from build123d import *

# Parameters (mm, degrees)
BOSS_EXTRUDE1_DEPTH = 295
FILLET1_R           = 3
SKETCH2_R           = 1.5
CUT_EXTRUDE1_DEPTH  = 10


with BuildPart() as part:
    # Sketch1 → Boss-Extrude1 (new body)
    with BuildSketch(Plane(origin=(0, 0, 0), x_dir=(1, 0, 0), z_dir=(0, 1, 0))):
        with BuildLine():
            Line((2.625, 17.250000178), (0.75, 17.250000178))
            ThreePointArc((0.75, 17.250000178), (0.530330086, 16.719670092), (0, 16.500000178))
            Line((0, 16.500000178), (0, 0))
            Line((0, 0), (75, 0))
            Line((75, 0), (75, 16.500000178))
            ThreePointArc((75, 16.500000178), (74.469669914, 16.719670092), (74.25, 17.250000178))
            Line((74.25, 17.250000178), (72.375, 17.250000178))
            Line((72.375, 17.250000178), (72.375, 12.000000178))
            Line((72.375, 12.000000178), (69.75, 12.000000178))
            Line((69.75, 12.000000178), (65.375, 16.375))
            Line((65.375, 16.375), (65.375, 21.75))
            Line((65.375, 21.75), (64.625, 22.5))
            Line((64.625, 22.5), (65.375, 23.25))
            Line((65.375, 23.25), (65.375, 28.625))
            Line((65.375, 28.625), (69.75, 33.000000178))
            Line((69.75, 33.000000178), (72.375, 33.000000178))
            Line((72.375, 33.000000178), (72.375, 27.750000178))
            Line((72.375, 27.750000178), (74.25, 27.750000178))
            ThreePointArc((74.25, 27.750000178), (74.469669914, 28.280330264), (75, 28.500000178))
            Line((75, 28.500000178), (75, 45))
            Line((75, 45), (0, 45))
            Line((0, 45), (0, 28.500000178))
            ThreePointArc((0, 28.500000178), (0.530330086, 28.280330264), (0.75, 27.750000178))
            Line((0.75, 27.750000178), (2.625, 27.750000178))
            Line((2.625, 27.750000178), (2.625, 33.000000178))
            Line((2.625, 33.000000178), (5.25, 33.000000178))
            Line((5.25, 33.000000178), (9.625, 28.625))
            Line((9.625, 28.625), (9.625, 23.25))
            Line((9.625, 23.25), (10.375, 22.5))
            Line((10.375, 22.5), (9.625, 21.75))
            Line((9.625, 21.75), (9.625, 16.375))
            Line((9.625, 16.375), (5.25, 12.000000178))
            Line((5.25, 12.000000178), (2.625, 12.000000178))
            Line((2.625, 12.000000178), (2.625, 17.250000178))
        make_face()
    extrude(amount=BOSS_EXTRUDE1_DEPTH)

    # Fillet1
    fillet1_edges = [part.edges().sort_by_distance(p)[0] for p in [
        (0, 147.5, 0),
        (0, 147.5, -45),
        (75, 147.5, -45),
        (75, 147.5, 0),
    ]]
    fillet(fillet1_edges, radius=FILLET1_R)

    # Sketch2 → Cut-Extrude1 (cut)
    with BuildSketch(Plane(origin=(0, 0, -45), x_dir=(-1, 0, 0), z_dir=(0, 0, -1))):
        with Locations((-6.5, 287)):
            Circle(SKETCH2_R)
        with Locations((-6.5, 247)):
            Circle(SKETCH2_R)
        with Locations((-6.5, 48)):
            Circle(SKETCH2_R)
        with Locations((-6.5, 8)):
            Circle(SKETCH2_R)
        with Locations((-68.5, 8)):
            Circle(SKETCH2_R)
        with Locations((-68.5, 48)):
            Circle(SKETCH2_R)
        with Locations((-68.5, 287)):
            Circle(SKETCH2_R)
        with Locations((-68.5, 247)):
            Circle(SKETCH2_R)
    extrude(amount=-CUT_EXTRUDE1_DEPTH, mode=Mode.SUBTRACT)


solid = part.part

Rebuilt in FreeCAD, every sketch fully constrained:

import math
import FreeCAD as App
import Part
import Sketcher

V = App.Vector


def edges_at(feature, points):
    """Names of the edges that pass closest to the given points."""
    edges = feature.Shape.Edges
    near = lambda p: min(range(len(edges)), key=lambda i: edges[i].distToShape(Part.Vertex(*p))[0])
    return sorted({f"Edge{near(p) + 1}" for p in points})

doc = App.newDocument("Part")
body = doc.addObject("PartDesign::Body", "Body")

sketch1 = body.newObject("Sketcher::SketchObject", "Sketch")
sketch1.AttachmentSupport = (doc.getObject("XZ_Plane"), [""])
sketch1.MapMode = "FlatFace"
sketch1.addGeometry(Part.LineSegment(V(2.625, -17.25, 0), V(0.75, -17.25, 0)), False)
sketch1.addGeometry(Part.ArcOfCircle(Part.Circle(V(0, -17.25, 0), V(0, 0, 1), 0.75), math.radians(0), math.radians(90)), False)
sketch1.addGeometry(Part.LineSegment(V(0, -16.5, 0), V(0, 0, 0)), False)
sketch1.addGeometry(Part.LineSegment(V(0, 0, 0), V(75, 0, 0)), False)
sketch1.addGeometry(Part.LineSegment(V(75, 0, 0), V(75, -16.5, 0)), False)
sketch1.addGeometry(Part.ArcOfCircle(Part.Circle(V(75, -17.25, 0), V(0, 0, 1), 0.75), math.radians(90), math.radians(180)), False)
sketch1.addGeometry(Part.LineSegment(V(74.25, -17.25, 0), V(72.375, -17.25, 0)), False)
sketch1.addGeometry(Part.LineSegment(V(72.375, -17.25, 0), V(72.375, -12, 0)), False)
sketch1.addGeometry(Part.LineSegment(V(72.375, -12, 0), V(69.75, -12, 0)), False)
sketch1.addGeometry(Part.LineSegment(V(69.75, -12, 0), V(65.375, -16.375, 0)), False)
sketch1.addGeometry(Part.LineSegment(V(65.375, -16.375, 0), V(65.375, -21.75, 0)), False)
sketch1.addGeometry(Part.LineSegment(V(65.375, -21.75, 0), V(64.625, -22.5, 0)), False)
sketch1.addGeometry(Part.LineSegment(V(64.625, -22.5, 0), V(65.375, -23.25, 0)), False)
sketch1.addGeometry(Part.LineSegment(V(65.375, -23.25, 0), V(65.375, -28.625, 0)), False)
sketch1.addGeometry(Part.LineSegment(V(65.375, -28.625, 0), V(69.75, -33, 0)), False)
sketch1.addGeometry(Part.LineSegment(V(69.75, -33, 0), V(72.375, -33, 0)), False)
sketch1.addGeometry(Part.LineSegment(V(72.375, -33, 0), V(72.375, -27.75, 0)), False)
sketch1.addGeometry(Part.LineSegment(V(72.375, -27.75, 0), V(74.25, -27.75, 0)), False)
sketch1.addGeometry(Part.ArcOfCircle(Part.Circle(V(75, -27.75, 0), V(0, 0, 1), 0.75), math.radians(180), math.radians(270)), False)
sketch1.addGeometry(Part.LineSegment(V(75, -28.5, 0), V(75, -45, 0)), False)
sketch1.addGeometry(Part.LineSegment(V(75, -45, 0), V(0, -45, 0)), False)
sketch1.addGeometry(Part.LineSegment(V(0, -45, 0), V(0, -28.5, 0)), False)
sketch1.addGeometry(Part.ArcOfCircle(Part.Circle(V(0, -27.75, 0), V(0, 0, 1), 0.75), math.radians(-90), math.radians(0)), False)
sketch1.addGeometry(Part.LineSegment(V(0.75, -27.75, 0), V(2.625, -27.75, 0)), False)
sketch1.addGeometry(Part.LineSegment(V(2.625, -27.75, 0), V(2.625, -33, 0)), False)
sketch1.addGeometry(Part.LineSegment(V(2.625, -33, 0), V(5.25, -33, 0)), False)
sketch1.addGeometry(Part.LineSegment(V(5.25, -33, 0), V(9.625, -28.625, 0)), False)
sketch1.addGeometry(Part.LineSegment(V(9.625, -28.625, 0), V(9.625, -23.25, 0)), False)
sketch1.addGeometry(Part.LineSegment(V(9.625, -23.25, 0), V(10.375, -22.5, 0)), False)
sketch1.addGeometry(Part.LineSegment(V(10.375, -22.5, 0), V(9.625, -21.75, 0)), False)
sketch1.addGeometry(Part.LineSegment(V(9.625, -21.75, 0), V(9.625, -16.375, 0)), False)
sketch1.addGeometry(Part.LineSegment(V(9.625, -16.375, 0), V(5.25, -12, 0)), False)
sketch1.addGeometry(Part.LineSegment(V(5.25, -12, 0), V(2.625, -12, 0)), False)
sketch1.addGeometry(Part.LineSegment(V(2.625, -12, 0), V(2.625, -17.25, 0)), False)
sketch1.addConstraint(Sketcher.Constraint("Coincident", 0, 2, 1, 1))
sketch1.addConstraint(Sketcher.Constraint("Coincident", 1, 2, 2, 1))
sketch1.addConstraint(Sketcher.Constraint("Coincident", 2, 2, 3, 1))
sketch1.addConstraint(Sketcher.Constraint("Coincident", 3, 2, 4, 1))
sketch1.addConstraint(Sketcher.Constraint("Coincident", 4, 2, 5, 1))
sketch1.addConstraint(Sketcher.Constraint("Coincident", 5, 2, 6, 1))
sketch1.addConstraint(Sketcher.Constraint("Coincident", 6, 2, 7, 1))
sketch1.addConstraint(Sketcher.Constraint("Coincident", 7, 2, 8, 1))
sketch1.addConstraint(Sketcher.Constraint("Coincident", 8, 2, 9, 1))
sketch1.addConstraint(Sketcher.Constraint("Coincident", 9, 2, 10, 1))
sketch1.addConstraint(Sketcher.Constraint("Coincident", 10, 2, 11, 1))
sketch1.addConstraint(Sketcher.Constraint("Coincident", 11, 2, 12, 1))
sketch1.addConstraint(Sketcher.Constraint("Coincident", 12, 2, 13, 1))
sketch1.addConstraint(Sketcher.Constraint("Coincident", 13, 2, 14, 1))
sketch1.addConstraint(Sketcher.Constraint("Coincident", 14, 2, 15, 1))
sketch1.addConstraint(Sketcher.Constraint("Coincident", 15, 2, 16, 1))
sketch1.addConstraint(Sketcher.Constraint("Coincident", 16, 2, 17, 1))
sketch1.addConstraint(Sketcher.Constraint("Coincident", 17, 2, 18, 1))
sketch1.addConstraint(Sketcher.Constraint("Coincident", 18, 2, 19, 1))
sketch1.addConstraint(Sketcher.Constraint("Coincident", 19, 2, 20, 1))
sketch1.addConstraint(Sketcher.Constraint("Coincident", 20, 2, 21, 1))
sketch1.addConstraint(Sketcher.Constraint("Coincident", 21, 2, 22, 1))
sketch1.addConstraint(Sketcher.Constraint("Coincident", 22, 2, 23, 1))
sketch1.addConstraint(Sketcher.Constraint("Coincident", 23, 2, 24, 1))
sketch1.addConstraint(Sketcher.Constraint("Coincident", 24, 2, 25, 1))
sketch1.addConstraint(Sketcher.Constraint("Coincident", 25, 2, 26, 1))
sketch1.addConstraint(Sketcher.Constraint("Coincident", 26, 2, 27, 1))
sketch1.addConstraint(Sketcher.Constraint("Coincident", 27, 2, 28, 1))
sketch1.addConstraint(Sketcher.Constraint("Coincident", 28, 2, 29, 1))
sketch1.addConstraint(Sketcher.Constraint("Coincident", 29, 2, 30, 1))
sketch1.addConstraint(Sketcher.Constraint("Coincident", 30, 2, 31, 1))
sketch1.addConstraint(Sketcher.Constraint("Coincident", 31, 2, 32, 1))
sketch1.addConstraint(Sketcher.Constraint("Coincident", 32, 2, 33, 1))
sketch1.addConstraint(Sketcher.Constraint("Coincident", 33, 2, 0, 1))
sketch1.addConstraint(Sketcher.Constraint("Horizontal", 0))
sketch1.addConstraint(Sketcher.Constraint("Vertical", 2))
sketch1.addConstraint(Sketcher.Constraint("Horizontal", 3))
sketch1.addConstraint(Sketcher.Constraint("Vertical", 4))
sketch1.addConstraint(Sketcher.Constraint("Horizontal", 6))
sketch1.addConstraint(Sketcher.Constraint("Vertical", 7))
sketch1.addConstraint(Sketcher.Constraint("Horizontal", 8))
sketch1.addConstraint(Sketcher.Constraint("Vertical", 10))
sketch1.addConstraint(Sketcher.Constraint("Vertical", 13))
sketch1.addConstraint(Sketcher.Constraint("Horizontal", 15))
sketch1.addConstraint(Sketcher.Constraint("Vertical", 16))
sketch1.addConstraint(Sketcher.Constraint("Horizontal", 17))
sketch1.addConstraint(Sketcher.Constraint("Vertical", 19))
sketch1.addConstraint(Sketcher.Constraint("Horizontal", 20))
sketch1.addConstraint(Sketcher.Constraint("Vertical", 21))
sketch1.addConstraint(Sketcher.Constraint("Horizontal", 23))
sketch1.addConstraint(Sketcher.Constraint("Vertical", 24))
sketch1.addConstraint(Sketcher.Constraint("Horizontal", 25))
sketch1.addConstraint(Sketcher.Constraint("Vertical", 27))
sketch1.addConstraint(Sketcher.Constraint("Vertical", 30))
sketch1.addConstraint(Sketcher.Constraint("Horizontal", 32))
sketch1.addConstraint(Sketcher.Constraint("Vertical", 33))
sketch1.addConstraint(Sketcher.Constraint("Coincident", 2, 2, -1, 1))
sketch1.addConstraint(Sketcher.Constraint("Equal", 1, 5))
sketch1.addConstraint(Sketcher.Constraint("Equal", 5, 18))
sketch1.addConstraint(Sketcher.Constraint("Equal", 18, 22))
sketch1.addConstraint(Sketcher.Constraint("PointOnObject", 1, 3, -2))
sketch1.addConstraint(Sketcher.Constraint("PointOnObject", 22, 3, -2))
sketch1.addConstraint(Sketcher.Constraint("PointOnObject", 20, 2, -2))
sketch1.addConstraint(Sketcher.Constraint("Parallel", 9, 11))
sketch1.addConstraint(Sketcher.Constraint("Perpendicular", 11, 12))
sketch1.addConstraint(Sketcher.Constraint("Parallel", 12, 14))
sketch1.addConstraint(Sketcher.Constraint("Perpendicular", 14, 26))
sketch1.addConstraint(Sketcher.Constraint("Parallel", 26, 28))
sketch1.addConstraint(Sketcher.Constraint("Perpendicular", 28, 29))
sketch1.addConstraint(Sketcher.Constraint("Parallel", 29, 31))
sketch1.addConstraint(Sketcher.Constraint("Horizontal", 1, 3, 5, 3))
sketch1.addConstraint(Sketcher.Constraint("Horizontal", 18, 3, 22, 3))
sketch1.addConstraint(Sketcher.Constraint("Horizontal", 5, 3, 0, 2))
sketch1.addConstraint(Sketcher.Constraint("Horizontal", 0, 2, 5, 2))
sketch1.addConstraint(Sketcher.Constraint("Horizontal", 22, 3, 16, 2))
sketch1.addConstraint(Sketcher.Constraint("Horizontal", 17, 2, 22, 2))
sketch1.addConstraint(Sketcher.Constraint("Horizontal", 15, 2, 24, 2))
sketch1.addConstraint(Sketcher.Constraint("Horizontal", 13, 2, 26, 2))
sketch1.addConstraint(Sketcher.Constraint("Horizontal", 12, 2, 27, 2))
sketch1.addConstraint(Sketcher.Constraint("Horizontal", 11, 2, 28, 2))
sketch1.addConstraint(Sketcher.Constraint("Horizontal", 10, 2, 29, 2))
sketch1.addConstraint(Sketcher.Constraint("Horizontal", 9, 2, 30, 2))
sketch1.addConstraint(Sketcher.Constraint("Horizontal", 8, 2, 31, 2))
sketch1.addConstraint(Sketcher.Constraint("Vertical", 5, 3, 18, 3))
sketch1.addConstraint(Sketcher.Constraint("Vertical", 18, 3, 3, 2))
sketch1.addConstraint(Sketcher.Constraint("Vertical", 10, 2, 12, 2))
sketch1.addConstraint(Sketcher.Constraint("Vertical", 8, 2, 14, 2))
sketch1.addConstraint(Sketcher.Constraint("Vertical", 7, 2, 15, 2))
sketch1.addConstraint(Sketcher.Constraint("Vertical", 4, 2, 18, 2))
sketch1.addConstraint(Sketcher.Constraint("Vertical", 27, 2, 29, 2))
sketch1.addConstraint(Sketcher.Constraint("Vertical", 24, 2, 32, 2))
sketch1.addConstraint(Sketcher.Constraint("Equal", 0, 6))
sketch1.addConstraint(Sketcher.Constraint("Equal", 15, 25))
sketch1.addConstraint(Sketcher.Constraint("Equal", 10, 13))
sketch1.addConstraint(Sketcher.Constraint("Equal", 7, 16))
sketch1.addConstraint(Sketcher.Constraint("Equal", 4, 19))
sketch1.addConstraint(Sketcher.Constraint("DistanceX", 3, 1, 3, 2, 75.0))
sketch1.addConstraint(Sketcher.Constraint("Radius", 1, 0.75))
sketch1.addConstraint(Sketcher.Constraint("DistanceY", 2, 1, 2, 2, 16.5))
sketch1.addConstraint(Sketcher.Constraint("DistanceY", 7, 2, -1, 1, 12.0))
sketch1.addConstraint(Sketcher.Constraint("DistanceY", 14, 2, -1, 1, 33.0))
sketch1.addConstraint(Sketcher.Constraint("DistanceX", 9, 2, 6, 2, 7.0))
sketch1.addConstraint(Sketcher.Constraint("DistanceY", 12, 2, 6, 2, 6.0))
sketch1.addConstraint(Sketcher.Constraint("DistanceX", 8, 2, 5, 2, 4.5))
sketch1.addConstraint(Sketcher.Constraint("DistanceX", 0, 2, 0, 1, 1.875))
pad1 = body.newObject("PartDesign::Pad", "Pad")
pad1.Profile = sketch1
pad1.Length = 295
pad1.Reversed = True
doc.recompute()

fillet = body.newObject("PartDesign::Fillet", "Fillet")
fillet.Base = (pad1, edges_at(pad1, [
    (0, 147.5, 0),
    (0, 147.5, -45),
    (75, 147.5, -45),
    (75, 147.5, 0),
]))
fillet.Radius = 3

sketch2 = body.newObject("Sketcher::SketchObject", "Sketch001")
sketch2.AttachmentSupport = (doc.getObject("XY_Plane"), [""])
sketch2.MapMode = "FlatFace"
sketch2.AttachmentOffset = App.Placement(V(0, 0, -45), App.Rotation())
sketch2.addGeometry(Part.Circle(V(6.5, 287, 0), V(0, 0, 1), 1.5), False)
sketch2.addGeometry(Part.Circle(V(6.5, 247, 0), V(0, 0, 1), 1.5), False)
sketch2.addGeometry(Part.Circle(V(6.5, 48, 0), V(0, 0, 1), 1.5), False)
sketch2.addGeometry(Part.Circle(V(6.5, 8, 0), V(0, 0, 1), 1.5), False)
sketch2.addGeometry(Part.Circle(V(68.5, 8, 0), V(0, 0, 1), 1.5), False)
sketch2.addGeometry(Part.Circle(V(68.5, 48, 0), V(0, 0, 1), 1.5), False)
sketch2.addGeometry(Part.Circle(V(68.5, 287, 0), V(0, 0, 1), 1.5), False)
sketch2.addGeometry(Part.Circle(V(68.5, 247, 0), V(0, 0, 1), 1.5), False)
sketch2.addConstraint(Sketcher.Constraint("Equal", 0, 1))
sketch2.addConstraint(Sketcher.Constraint("Equal", 1, 2))
sketch2.addConstraint(Sketcher.Constraint("Equal", 2, 3))
sketch2.addConstraint(Sketcher.Constraint("Equal", 3, 4))
sketch2.addConstraint(Sketcher.Constraint("Equal", 4, 5))
sketch2.addConstraint(Sketcher.Constraint("Equal", 5, 6))
sketch2.addConstraint(Sketcher.Constraint("Equal", 6, 7))
sketch2.addConstraint(Sketcher.Constraint("Horizontal", 3, 3, 4, 3))
sketch2.addConstraint(Sketcher.Constraint("Horizontal", 2, 3, 5, 3))
sketch2.addConstraint(Sketcher.Constraint("Horizontal", 0, 3, 6, 3))
sketch2.addConstraint(Sketcher.Constraint("Horizontal", 1, 3, 7, 3))
sketch2.addConstraint(Sketcher.Constraint("Vertical", 0, 3, 1, 3))
sketch2.addConstraint(Sketcher.Constraint("Vertical", 1, 3, 2, 3))
sketch2.addConstraint(Sketcher.Constraint("Vertical", 2, 3, 3, 3))
sketch2.addConstraint(Sketcher.Constraint("Vertical", 4, 3, 5, 3))
sketch2.addConstraint(Sketcher.Constraint("Vertical", 5, 3, 6, 3))
sketch2.addConstraint(Sketcher.Constraint("Vertical", 6, 3, 7, 3))
sketch2.addConstraint(Sketcher.Constraint("Diameter", 0, 3.0))
sketch2.addConstraint(Sketcher.Constraint("DistanceY", -1, 1, 0, 3, 287.0))
sketch2.addConstraint(Sketcher.Constraint("DistanceY", -1, 1, 1, 3, 247.0))
sketch2.addConstraint(Sketcher.Constraint("DistanceY", -1, 1, 2, 3, 48.0))
sketch2.addConstraint(Sketcher.Constraint("DistanceY", -1, 1, 3, 3, 8.0))
sketch2.addConstraint(Sketcher.Constraint("DistanceX", 3, 3, 4, 3, 62.0))
sketch2.addConstraint(Sketcher.Constraint("DistanceX", -1, 1, 0, 3, 6.5))
pocket1 = body.newObject("PartDesign::Pocket", "Pocket")
pocket1.Profile = sketch2
pocket1.Length = 10
pocket1.Reversed = True

doc.recompute()
